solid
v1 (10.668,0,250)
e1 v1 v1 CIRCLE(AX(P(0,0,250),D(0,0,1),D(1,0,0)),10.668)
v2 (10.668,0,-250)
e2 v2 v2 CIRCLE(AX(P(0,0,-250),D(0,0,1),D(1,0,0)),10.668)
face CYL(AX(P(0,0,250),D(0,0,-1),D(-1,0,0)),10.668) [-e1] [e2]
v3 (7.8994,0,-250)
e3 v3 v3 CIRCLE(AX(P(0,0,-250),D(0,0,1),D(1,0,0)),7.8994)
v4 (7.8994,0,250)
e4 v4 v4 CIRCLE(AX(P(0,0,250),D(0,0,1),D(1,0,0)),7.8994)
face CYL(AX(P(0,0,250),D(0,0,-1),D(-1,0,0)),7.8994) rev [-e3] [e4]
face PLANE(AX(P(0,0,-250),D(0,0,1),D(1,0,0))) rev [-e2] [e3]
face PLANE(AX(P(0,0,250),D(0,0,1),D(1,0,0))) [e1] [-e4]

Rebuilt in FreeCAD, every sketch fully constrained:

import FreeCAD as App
import Part
import Sketcher
Q = App.Units.Quantity

doc = App.newDocument("Part")
body = doc.addObject("PartDesign::Body", "Body")

sketch1 = body.newObject("Sketcher::SketchObject", "Sketch")
sketch1.AttachmentSupport = (doc.getObject("XY_Plane"), [""])
sketch1.MapMode = "FlatFace"
sketch1.addGeometry([
    Part.Circle(App.Vector(0, 0, 0), App.Vector(0, 0, 1), 10.668),
    Part.Circle(App.Vector(0, 0, 0), App.Vector(0, 0, 1), 7.8994),
], False)
sketch1.addConstraint([
    Sketcher.Constraint("Coincident", 0, 3, -1, 1),
    Sketcher.Constraint("Coincident", 1, 3, -1, 1),
    Sketcher.Constraint("Diameter", 0, Q("0.84 in")),
    Sketcher.Constraint("Diameter", 1, Q("0.622 in")),
])
pad1 = body.newObject("PartDesign::Pad", "Pad")
pad1.Profile = sketch1
pad1.Length = 500
pad1.Midplane = True

doc.recompute()
